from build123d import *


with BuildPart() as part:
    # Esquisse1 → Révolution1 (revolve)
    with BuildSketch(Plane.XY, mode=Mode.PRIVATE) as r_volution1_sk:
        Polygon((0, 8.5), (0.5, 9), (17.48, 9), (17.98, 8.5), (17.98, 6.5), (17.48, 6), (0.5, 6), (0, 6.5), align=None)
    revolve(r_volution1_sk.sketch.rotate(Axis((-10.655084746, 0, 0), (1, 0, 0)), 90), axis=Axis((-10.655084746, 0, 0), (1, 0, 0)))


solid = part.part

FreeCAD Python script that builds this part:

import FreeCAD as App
import Part
import Sketcher


def add_polygon(sketch, points):
    """Adds a closed chain of lines whose ends are joined by coincident constraints."""
    first, n = sketch.GeometryCount, len(points)
    for a, b in zip(points, points[1:] + points[:1]):
        sketch.addGeometry(Part.LineSegment(App.Vector(*a, 0), App.Vector(*b, 0)), False)
    for i in range(n):
        sketch.addConstraint(Sketcher.Constraint("Coincident", first + i, 2, first + (i + 1) % n, 1))

doc = App.newDocument("Part")
body = doc.addObject("PartDesign::Body", "Body")

sketch1 = body.newObject("Sketcher::SketchObject", "Sketch")
sketch1.AttachmentSupport = (doc.getObject("XY_Plane"), [""])
sketch1.MapMode = "FlatFace"
add_polygon(sketch1, [(0.5, 9), (0, 8.5), (0, 6.5), (0.5, 6), (17.5, 6), (18, 6.5), (18, 8.5), (17.5, 9)])
sketch1.addConstraint(Sketcher.Constraint("Vertical", 1))
sketch1.addConstraint(Sketcher.Constraint("Horizontal", 3))
sketch1.addConstraint(Sketcher.Constraint("Vertical", 5))
sketch1.addConstraint(Sketcher.Constraint("Horizontal", 7))
sketch1.addConstraint(Sketcher.Constraint("PointOnObject", 0, 2, -2))
sketch1.addConstraint(Sketcher.Constraint("Perpendicular", 0, 2))
sketch1.addConstraint(Sketcher.Constraint("Perpendicular", 2, 4))
sketch1.addConstraint(Sketcher.Constraint("Perpendicular", 4, 6))
sketch1.addConstraint(Sketcher.Constraint("Horizontal", 1, 2, 4, 2))
sketch1.addConstraint(Sketcher.Constraint("Horizontal", 0, 2, 5, 2))
sketch1.addConstraint(Sketcher.Constraint("Vertical", 3, 2, 6, 2))
sketch1.addConstraint(Sketcher.Constraint("Vertical", 2, 2, 7, 2))
sketch1.addConstraint(Sketcher.Constraint("DistanceY", 1, 2, 1, 1, 2.0))
sketch1.addConstraint(Sketcher.Constraint("DistanceY", -1, 1, 2, 2, 6.0))
sketch1.addConstraint(Sketcher.Constraint("DistanceY", -1, 1, 6, 2, 9.0))
sketch1.addConstraint(Sketcher.Constraint("DistanceX", 3, 1, 3, 2, 16.98))
revolution = body.newObject("PartDesign::Revolution", "Revolution")
revolution.Profile = sketch1
revolution.ReferenceAxis = (sketch1, ["H_Axis"])
revolution.Angle = 360

doc.recompute()
